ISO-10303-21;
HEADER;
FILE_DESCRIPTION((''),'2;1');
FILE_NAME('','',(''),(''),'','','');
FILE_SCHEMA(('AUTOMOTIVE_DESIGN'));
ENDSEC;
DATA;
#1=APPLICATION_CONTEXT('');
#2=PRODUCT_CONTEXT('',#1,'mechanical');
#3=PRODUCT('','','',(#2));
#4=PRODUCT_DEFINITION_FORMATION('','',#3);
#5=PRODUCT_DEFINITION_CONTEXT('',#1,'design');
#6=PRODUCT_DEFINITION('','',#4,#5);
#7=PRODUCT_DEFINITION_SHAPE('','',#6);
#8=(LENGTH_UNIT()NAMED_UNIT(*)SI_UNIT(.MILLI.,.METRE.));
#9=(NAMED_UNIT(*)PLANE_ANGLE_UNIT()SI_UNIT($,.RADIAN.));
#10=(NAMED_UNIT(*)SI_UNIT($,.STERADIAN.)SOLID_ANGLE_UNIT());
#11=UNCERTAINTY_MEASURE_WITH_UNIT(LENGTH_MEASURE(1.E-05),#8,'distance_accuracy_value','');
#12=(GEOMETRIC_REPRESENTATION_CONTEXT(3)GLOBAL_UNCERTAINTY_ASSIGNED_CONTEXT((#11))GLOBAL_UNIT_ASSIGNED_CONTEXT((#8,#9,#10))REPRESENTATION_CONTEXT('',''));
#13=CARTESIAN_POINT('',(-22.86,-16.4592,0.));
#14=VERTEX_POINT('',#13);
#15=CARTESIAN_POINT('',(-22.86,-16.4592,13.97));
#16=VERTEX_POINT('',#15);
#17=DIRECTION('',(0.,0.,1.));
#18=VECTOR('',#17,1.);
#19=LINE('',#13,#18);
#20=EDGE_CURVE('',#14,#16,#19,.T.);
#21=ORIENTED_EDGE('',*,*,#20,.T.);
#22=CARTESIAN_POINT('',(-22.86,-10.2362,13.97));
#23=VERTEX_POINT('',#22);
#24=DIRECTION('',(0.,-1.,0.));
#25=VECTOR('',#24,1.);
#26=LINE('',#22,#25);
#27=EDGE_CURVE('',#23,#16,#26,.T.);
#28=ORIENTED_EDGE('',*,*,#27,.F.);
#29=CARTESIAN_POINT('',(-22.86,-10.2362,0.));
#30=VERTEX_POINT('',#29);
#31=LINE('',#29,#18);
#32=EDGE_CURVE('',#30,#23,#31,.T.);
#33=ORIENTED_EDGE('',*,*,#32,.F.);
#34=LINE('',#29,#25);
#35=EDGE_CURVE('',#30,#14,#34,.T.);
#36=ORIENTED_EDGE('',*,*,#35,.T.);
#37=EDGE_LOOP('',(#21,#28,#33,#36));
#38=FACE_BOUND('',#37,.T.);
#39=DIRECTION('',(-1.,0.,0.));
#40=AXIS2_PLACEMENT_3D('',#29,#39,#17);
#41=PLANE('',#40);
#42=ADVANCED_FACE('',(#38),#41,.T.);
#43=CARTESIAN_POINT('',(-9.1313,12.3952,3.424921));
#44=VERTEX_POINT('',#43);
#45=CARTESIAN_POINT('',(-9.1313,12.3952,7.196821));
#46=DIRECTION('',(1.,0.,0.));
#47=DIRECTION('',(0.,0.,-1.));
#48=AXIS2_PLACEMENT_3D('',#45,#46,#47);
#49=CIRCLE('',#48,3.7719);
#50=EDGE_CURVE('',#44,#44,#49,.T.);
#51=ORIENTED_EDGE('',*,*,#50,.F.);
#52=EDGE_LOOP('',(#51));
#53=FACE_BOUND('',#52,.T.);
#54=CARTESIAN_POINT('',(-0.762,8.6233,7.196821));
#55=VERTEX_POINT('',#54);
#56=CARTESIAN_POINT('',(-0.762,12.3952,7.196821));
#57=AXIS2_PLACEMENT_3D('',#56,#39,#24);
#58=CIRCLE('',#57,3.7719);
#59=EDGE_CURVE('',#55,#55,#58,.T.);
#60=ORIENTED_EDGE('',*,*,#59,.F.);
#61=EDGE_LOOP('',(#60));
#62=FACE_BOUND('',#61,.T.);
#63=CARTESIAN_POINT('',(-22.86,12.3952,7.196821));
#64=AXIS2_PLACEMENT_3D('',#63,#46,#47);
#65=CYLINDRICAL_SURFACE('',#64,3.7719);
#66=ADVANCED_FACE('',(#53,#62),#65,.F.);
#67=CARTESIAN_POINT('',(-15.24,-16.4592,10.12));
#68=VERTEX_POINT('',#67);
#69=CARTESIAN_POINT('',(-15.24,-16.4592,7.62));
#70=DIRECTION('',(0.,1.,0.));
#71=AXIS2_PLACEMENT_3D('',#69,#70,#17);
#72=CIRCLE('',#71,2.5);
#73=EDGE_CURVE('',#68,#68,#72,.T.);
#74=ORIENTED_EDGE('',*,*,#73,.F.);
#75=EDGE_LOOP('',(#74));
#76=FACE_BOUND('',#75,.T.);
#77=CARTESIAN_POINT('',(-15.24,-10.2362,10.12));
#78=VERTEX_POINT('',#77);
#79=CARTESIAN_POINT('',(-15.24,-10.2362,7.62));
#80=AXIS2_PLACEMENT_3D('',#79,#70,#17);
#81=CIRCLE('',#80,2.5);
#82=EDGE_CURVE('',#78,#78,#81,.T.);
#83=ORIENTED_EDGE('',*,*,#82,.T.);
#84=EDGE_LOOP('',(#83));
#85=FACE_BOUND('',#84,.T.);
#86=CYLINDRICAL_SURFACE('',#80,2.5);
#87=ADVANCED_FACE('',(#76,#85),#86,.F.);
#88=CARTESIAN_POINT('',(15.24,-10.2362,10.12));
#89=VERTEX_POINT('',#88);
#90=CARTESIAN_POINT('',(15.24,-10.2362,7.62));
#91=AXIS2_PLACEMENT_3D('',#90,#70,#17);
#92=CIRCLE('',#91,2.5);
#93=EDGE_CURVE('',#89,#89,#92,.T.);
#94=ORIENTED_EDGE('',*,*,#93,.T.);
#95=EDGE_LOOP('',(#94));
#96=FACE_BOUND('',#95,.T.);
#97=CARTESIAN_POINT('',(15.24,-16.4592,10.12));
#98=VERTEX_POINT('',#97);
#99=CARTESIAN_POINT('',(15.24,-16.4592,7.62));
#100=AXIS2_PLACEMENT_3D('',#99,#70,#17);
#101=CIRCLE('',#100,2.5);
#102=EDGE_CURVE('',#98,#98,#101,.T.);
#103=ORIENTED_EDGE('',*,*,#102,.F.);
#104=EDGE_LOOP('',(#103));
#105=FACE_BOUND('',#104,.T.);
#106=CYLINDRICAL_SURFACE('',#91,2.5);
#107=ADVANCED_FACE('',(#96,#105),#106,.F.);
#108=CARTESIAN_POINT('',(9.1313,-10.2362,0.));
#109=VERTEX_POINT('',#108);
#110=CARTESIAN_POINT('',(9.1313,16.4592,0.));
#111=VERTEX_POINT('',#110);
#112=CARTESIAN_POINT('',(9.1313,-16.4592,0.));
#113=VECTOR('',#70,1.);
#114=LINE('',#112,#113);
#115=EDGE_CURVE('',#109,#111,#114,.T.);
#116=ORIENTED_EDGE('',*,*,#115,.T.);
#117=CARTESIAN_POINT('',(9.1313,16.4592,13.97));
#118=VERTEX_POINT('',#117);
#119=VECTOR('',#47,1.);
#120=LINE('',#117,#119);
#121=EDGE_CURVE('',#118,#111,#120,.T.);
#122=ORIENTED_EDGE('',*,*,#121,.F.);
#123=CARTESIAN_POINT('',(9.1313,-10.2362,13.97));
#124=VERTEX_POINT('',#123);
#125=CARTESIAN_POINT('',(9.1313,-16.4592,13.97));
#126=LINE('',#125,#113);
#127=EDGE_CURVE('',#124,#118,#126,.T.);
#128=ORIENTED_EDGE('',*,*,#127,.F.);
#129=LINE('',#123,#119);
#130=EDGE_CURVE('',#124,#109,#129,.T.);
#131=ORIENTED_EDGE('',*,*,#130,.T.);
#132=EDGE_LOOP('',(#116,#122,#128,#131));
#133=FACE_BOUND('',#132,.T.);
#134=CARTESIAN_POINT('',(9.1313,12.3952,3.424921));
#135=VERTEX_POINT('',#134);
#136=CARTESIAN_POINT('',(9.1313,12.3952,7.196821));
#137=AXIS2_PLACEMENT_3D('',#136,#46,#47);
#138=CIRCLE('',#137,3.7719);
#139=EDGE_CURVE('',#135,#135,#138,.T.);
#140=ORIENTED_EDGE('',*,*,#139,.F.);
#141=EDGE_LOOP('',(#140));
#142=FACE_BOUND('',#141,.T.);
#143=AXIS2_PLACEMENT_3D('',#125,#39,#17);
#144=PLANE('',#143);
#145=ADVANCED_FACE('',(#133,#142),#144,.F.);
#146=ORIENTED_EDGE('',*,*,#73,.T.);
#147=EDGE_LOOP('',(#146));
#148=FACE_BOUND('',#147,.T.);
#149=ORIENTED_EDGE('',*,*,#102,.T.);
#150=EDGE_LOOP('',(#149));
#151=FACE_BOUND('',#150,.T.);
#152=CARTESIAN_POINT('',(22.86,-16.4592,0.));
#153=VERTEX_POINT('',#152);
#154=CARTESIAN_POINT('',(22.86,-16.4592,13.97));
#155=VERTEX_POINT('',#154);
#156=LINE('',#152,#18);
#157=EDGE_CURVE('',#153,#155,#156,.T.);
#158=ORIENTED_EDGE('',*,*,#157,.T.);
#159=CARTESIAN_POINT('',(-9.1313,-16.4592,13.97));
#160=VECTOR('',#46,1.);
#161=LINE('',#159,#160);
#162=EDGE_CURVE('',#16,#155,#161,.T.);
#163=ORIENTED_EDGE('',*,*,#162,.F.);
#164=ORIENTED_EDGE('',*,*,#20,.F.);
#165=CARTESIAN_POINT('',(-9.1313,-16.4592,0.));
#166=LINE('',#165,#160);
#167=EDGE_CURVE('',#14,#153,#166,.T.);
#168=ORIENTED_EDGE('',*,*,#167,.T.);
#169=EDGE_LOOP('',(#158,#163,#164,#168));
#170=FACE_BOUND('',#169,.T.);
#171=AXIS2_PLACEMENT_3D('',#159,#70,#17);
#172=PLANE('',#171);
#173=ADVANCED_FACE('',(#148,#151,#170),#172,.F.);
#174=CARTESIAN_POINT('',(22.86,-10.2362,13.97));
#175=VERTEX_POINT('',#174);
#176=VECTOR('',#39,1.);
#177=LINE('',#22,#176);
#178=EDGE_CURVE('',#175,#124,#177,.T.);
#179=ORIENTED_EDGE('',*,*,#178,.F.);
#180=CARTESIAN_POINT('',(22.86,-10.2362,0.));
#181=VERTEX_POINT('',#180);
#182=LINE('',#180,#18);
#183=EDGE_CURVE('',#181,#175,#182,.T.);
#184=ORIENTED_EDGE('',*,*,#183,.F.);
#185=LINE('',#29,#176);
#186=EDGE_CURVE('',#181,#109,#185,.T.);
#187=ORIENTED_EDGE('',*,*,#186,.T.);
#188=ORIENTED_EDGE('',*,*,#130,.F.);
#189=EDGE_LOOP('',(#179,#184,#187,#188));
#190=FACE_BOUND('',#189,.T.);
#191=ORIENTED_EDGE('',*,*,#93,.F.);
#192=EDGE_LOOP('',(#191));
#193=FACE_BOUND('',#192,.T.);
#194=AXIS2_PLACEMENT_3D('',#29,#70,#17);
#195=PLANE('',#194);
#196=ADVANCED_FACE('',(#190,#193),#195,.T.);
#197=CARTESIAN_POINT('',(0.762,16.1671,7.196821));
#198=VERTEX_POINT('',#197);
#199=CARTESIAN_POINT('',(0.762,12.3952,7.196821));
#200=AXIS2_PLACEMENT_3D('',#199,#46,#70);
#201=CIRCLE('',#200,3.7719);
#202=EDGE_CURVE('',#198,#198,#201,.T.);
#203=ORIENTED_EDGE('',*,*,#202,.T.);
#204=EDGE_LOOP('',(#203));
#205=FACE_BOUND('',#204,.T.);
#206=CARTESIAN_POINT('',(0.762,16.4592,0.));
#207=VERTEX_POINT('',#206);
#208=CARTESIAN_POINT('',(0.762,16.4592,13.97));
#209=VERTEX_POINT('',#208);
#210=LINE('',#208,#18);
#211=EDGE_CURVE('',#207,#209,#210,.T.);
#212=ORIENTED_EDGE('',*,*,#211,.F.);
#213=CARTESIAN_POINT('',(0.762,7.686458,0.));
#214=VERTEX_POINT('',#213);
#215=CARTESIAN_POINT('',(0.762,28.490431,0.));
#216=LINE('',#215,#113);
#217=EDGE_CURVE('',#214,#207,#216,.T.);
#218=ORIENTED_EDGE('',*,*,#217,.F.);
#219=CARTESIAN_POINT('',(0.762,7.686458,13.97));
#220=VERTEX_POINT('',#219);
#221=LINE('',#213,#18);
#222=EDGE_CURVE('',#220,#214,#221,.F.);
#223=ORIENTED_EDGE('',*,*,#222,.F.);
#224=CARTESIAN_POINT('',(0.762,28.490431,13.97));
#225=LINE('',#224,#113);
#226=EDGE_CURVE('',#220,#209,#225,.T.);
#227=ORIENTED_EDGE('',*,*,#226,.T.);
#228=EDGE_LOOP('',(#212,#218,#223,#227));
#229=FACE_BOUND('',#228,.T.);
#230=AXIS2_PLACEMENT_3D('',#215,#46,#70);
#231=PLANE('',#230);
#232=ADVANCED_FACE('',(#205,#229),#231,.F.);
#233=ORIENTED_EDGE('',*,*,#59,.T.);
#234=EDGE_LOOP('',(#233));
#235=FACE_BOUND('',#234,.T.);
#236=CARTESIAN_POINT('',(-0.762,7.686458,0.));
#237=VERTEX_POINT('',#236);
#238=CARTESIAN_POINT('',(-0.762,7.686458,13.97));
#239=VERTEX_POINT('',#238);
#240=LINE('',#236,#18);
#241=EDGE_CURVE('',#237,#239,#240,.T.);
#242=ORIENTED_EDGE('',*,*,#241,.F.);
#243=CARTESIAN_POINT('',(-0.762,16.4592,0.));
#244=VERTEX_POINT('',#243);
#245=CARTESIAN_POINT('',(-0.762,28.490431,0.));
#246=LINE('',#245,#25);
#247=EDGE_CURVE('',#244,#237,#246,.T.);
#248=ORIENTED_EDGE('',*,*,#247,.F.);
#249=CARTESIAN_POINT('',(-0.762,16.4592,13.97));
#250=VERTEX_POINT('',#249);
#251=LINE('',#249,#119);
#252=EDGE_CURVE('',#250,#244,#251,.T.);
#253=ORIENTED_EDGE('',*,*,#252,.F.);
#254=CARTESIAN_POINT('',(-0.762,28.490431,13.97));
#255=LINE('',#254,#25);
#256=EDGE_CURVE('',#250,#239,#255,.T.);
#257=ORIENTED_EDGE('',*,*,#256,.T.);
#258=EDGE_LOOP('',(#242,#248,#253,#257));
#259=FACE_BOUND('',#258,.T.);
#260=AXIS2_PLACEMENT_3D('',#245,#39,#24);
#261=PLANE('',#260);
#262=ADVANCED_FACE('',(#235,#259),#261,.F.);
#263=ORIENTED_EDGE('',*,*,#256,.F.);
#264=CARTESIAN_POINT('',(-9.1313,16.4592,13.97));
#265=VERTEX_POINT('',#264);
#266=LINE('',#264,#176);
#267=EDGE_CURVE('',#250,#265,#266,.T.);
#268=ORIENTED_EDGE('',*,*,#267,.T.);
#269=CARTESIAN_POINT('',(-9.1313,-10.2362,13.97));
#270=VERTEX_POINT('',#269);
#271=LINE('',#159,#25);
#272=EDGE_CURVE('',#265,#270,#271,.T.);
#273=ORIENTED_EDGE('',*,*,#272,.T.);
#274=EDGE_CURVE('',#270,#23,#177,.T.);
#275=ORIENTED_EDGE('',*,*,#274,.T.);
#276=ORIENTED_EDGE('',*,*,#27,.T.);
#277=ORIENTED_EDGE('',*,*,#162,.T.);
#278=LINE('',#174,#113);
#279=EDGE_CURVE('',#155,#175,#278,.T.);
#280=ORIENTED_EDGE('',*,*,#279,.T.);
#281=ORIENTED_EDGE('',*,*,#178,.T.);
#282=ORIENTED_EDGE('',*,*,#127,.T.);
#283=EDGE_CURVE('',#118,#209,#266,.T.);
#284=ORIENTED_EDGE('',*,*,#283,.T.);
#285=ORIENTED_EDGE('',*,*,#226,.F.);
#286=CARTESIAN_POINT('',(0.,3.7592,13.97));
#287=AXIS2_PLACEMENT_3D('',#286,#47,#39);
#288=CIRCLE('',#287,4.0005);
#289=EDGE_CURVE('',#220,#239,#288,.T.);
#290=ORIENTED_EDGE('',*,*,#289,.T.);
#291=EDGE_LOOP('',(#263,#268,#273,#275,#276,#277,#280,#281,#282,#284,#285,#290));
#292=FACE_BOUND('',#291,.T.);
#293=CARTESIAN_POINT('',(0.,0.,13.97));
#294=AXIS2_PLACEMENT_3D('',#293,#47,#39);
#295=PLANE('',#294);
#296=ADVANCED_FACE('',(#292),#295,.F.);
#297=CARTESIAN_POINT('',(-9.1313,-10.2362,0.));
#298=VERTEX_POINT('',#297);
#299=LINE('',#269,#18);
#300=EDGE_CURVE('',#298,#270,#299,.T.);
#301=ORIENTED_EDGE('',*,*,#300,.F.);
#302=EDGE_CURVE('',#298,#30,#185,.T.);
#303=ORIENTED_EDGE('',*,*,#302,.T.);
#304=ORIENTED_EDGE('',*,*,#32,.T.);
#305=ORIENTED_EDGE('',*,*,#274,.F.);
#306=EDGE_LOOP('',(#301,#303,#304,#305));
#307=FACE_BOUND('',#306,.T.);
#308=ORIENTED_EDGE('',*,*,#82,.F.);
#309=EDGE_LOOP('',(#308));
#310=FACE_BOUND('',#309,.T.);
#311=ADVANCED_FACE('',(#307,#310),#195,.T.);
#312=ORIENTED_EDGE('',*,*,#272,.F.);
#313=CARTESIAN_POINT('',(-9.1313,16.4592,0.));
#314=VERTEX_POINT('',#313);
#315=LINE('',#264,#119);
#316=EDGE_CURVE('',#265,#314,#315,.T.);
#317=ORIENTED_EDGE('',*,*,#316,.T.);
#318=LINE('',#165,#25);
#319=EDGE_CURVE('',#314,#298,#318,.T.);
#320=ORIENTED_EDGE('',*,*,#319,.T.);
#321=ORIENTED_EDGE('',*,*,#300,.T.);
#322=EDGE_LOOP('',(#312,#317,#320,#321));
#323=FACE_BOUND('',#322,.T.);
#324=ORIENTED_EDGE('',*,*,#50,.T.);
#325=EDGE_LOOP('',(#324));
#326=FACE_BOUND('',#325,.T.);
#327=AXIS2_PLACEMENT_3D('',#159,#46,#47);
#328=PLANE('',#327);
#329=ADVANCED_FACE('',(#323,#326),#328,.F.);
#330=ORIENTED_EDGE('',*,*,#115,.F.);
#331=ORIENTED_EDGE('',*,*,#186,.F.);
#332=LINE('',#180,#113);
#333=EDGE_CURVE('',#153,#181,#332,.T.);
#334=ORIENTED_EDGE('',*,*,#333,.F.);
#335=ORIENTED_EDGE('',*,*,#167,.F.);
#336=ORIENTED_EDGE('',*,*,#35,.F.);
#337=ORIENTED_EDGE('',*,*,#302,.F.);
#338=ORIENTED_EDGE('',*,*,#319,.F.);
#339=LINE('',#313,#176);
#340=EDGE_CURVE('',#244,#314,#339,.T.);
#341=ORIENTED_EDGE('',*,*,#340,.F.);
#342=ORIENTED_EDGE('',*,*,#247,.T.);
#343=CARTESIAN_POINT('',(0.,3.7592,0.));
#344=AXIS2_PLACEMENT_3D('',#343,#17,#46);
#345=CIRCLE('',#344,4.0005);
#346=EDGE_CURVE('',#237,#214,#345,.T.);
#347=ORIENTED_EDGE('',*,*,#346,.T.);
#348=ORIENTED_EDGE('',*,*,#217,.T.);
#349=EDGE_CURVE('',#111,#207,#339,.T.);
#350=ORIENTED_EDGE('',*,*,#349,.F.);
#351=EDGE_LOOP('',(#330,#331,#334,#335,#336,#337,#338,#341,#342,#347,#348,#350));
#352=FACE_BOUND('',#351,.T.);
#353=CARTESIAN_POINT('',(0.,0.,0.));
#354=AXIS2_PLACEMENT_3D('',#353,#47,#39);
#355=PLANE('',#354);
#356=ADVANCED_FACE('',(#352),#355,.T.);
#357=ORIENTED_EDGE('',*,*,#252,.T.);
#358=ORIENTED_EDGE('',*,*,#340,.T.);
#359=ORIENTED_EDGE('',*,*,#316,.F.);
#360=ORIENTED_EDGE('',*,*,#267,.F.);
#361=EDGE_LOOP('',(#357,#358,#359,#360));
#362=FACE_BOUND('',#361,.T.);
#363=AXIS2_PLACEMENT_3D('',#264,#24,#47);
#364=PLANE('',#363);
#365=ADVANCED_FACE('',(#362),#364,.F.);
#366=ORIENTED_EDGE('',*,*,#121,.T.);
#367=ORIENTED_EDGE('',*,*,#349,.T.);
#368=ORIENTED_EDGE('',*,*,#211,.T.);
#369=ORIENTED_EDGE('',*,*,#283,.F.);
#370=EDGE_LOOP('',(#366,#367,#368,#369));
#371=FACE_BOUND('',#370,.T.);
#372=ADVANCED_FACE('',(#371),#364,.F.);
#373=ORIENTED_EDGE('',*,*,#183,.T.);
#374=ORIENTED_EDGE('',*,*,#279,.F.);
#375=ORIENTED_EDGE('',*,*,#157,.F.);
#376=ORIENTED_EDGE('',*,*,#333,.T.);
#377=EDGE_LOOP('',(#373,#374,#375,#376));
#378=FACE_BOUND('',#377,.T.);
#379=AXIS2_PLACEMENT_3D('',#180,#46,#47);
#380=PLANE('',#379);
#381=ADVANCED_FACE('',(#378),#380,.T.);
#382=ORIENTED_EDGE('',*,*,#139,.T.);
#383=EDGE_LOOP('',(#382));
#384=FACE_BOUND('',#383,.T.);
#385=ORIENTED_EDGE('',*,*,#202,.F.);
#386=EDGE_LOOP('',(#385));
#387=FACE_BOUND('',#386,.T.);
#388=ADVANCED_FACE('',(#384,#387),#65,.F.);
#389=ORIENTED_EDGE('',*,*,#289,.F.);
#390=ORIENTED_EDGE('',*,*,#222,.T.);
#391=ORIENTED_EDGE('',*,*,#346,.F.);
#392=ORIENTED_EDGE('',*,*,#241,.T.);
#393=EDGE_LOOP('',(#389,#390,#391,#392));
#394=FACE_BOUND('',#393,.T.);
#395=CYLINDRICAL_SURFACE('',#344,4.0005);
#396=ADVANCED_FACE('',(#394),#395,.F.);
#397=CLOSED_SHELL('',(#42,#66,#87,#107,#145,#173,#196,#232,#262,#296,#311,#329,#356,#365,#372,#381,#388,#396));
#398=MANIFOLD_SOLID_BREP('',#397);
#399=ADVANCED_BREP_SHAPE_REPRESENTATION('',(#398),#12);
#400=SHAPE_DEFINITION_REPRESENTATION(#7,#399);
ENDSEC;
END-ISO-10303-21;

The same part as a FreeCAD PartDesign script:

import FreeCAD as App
import Part
import Sketcher

V = App.Vector
Q = App.Units.Quantity

doc = App.newDocument("Part")
body = doc.addObject("PartDesign::Body", "Body")

sketch1 = body.newObject("Sketcher::SketchObject", "Sketch")
sketch1.AttachmentSupport = (doc.getObject("XY_Plane"), [""])
sketch1.MapMode = "FlatFace"
sketch1.addGeometry([
    Part.LineSegment(V(-9, 16, 0), V(-9, -16, 0)),
    Part.LineSegment(V(-9, -16, 0), V(9, -16, 0)),
    Part.LineSegment(V(9, -16, 0), V(9, 16, 0)),
    Part.LineSegment(V(9, 16, 0), V(-9, 16, 0)),
], False)
sketch1.addConstraint([
    Sketcher.Constraint("Coincident", 0, 2, 1, 1),
    Sketcher.Constraint("Coincident", 1, 2, 2, 1),
    Sketcher.Constraint("Coincident", 2, 2, 3, 1),
    Sketcher.Constraint("Coincident", 3, 2, 0, 1),
    Sketcher.Constraint("Vertical", 0),
    Sketcher.Constraint("Horizontal", 1),
    Sketcher.Constraint("Vertical", 2),
    Sketcher.Constraint("Horizontal", 3),
    Sketcher.Constraint("Symmetric", 0, 2, 2, 2, -1, 1),
    Sketcher.Constraint("DistanceX", 1, 1, 1, 2, Q("0.719 in")),
    Sketcher.Constraint("DistanceY", 0, 2, 0, 1, Q("1.296 in")),
])
pad1 = body.newObject("PartDesign::Pad", "Pad")
pad1.Profile = sketch1
pad1.Length = Q("0.55 in")

sketch2 = body.newObject("Sketcher::SketchObject", "Sketch001")
sketch2.AttachmentSupport = (doc.getObject("XY_Plane"), [""])
sketch2.MapMode = "FlatFace"
sketch2.AttachmentOffset = App.Placement(V(0, 0, 0.55 * 25.4), App.Rotation())
sketch2.addGeometry([
    Part.LineSegment(V(-23, -10, 0), V(-23, -16, 0)),
    Part.LineSegment(V(-23, -16, 0), V(23, -16, 0)),
    Part.LineSegment(V(23, -16, 0), V(23, -10, 0)),
    Part.LineSegment(V(23, -10, 0), V(-23, -10, 0)),
], False)
sketch2.addConstraint([
    Sketcher.Constraint("Coincident", 0, 2, 1, 1),
    Sketcher.Constraint("Coincident", 1, 2, 2, 1),
    Sketcher.Constraint("Coincident", 2, 2, 3, 1),
    Sketcher.Constraint("Coincident", 3, 2, 0, 1),
    Sketcher.Constraint("Vertical", 0),
    Sketcher.Constraint("Horizontal", 1),
    Sketcher.Constraint("Vertical", 2),
    Sketcher.Constraint("Horizontal", 3),
    Sketcher.Constraint("DistanceX", 1, 1, 1, 2, Q("1.8 in")),
    Sketcher.Constraint("DistanceX", 0, 2, -1, 1, Q("0.9 in")),
    Sketcher.Constraint("DistanceY", 0, 2, 0, 1, Q("0.245 in")),
    Sketcher.Constraint("DistanceY", 0, 2, -1, 1, Q("0.648 in")),
])
pad2 = body.newObject("PartDesign::Pad", "Pad001")
pad2.Profile = sketch2
pad2.Length = Q("0.55 in")
pad2.Reversed = True

sketch3 = body.newObject("Sketcher::SketchObject", "Sketch002")
sketch3.AttachmentSupport = (doc.getObject("XY_Plane"), [""])
sketch3.MapMode = "FlatFace"
sketch3.AttachmentOffset = App.Placement(V(0, 0, 0.55 * 25.4), App.Rotation())
sketch3.addGeometry(Part.Circle(V(0, 3.8, 0), V(0, 0, 1), 4), False)
sketch3.addConstraint([
    Sketcher.Constraint("PointOnObject", 0, 3, -2),
    Sketcher.Constraint("Diameter", 0, Q("0.315 in")),
    Sketcher.Constraint("DistanceY", -1, 1, 0, 3, Q("0.148 in")),
])
pocket1 = body.newObject("PartDesign::Pocket", "Pocket")
pocket1.Profile = sketch3
pocket1.Type = "ThroughAll"
pocket1.Midplane = True

sketch4 = body.newObject("Sketcher::SketchObject", "Sketch003")
sketch4.AttachmentSupport = (doc.getObject("XY_Plane"), [""])
sketch4.MapMode = "FlatFace"
sketch4.AttachmentOffset = App.Placement(V(0, 0, 0.55 * 25.4), App.Rotation())
sketch4.addGeometry([
    Part.LineSegment(V(-0.8, 28.5, 0), V(-0.8, 4.4, 0)),
    Part.LineSegment(V(-0.8, 4.4, 0), V(0.8, 4.4, 0)),
    Part.LineSegment(V(0.8, 4.4, 0), V(0.8, 28.5, 0)),
    Part.LineSegment(V(0.8, 28.5, 0), V(-0.8, 28.5, 0)),
], False)
sketch4.addConstraint([
    Sketcher.Constraint("Coincident", 0, 2, 1, 1),
    Sketcher.Constraint("Coincident", 1, 2, 2, 1),
    Sketcher.Constraint("Coincident", 2, 2, 3, 1),
    Sketcher.Constraint("Coincident", 3, 2, 0, 1),
    Sketcher.Constraint("Vertical", 0),
    Sketcher.Constraint("Horizontal", 1),
    Sketcher.Constraint("Vertical", 2),
    Sketcher.Constraint("Horizontal", 3),
    Sketcher.Constraint("DistanceX", 1, 1, 1, 2, Q("0.06 in")),
    Sketcher.Constraint("DistanceX", 0, 2, -1, 1, Q("0.03 in")),
    Sketcher.Constraint("DistanceY", 0, 2, 0, 1, Q("24.062462 mm")),
    Sketcher.Constraint("DistanceY", -1, 1, 0, 2, Q("4.427969 mm")),
])
pocket2 = body.newObject("PartDesign::Pocket", "Pocket001")
pocket2.Profile = sketch4
pocket2.Type = "ThroughAll"

sketch5 = body.newObject("Sketcher::SketchObject", "Sketch004")
sketch5.AttachmentSupport = (doc.getObject("YZ_Plane"), [""])
sketch5.MapMode = "FlatFace"
sketch5.AttachmentOffset = App.Placement(V(0, 0, 0.3595 * 25.4), App.Rotation())
sketch5.addGeometry(Part.Circle(V(12.4, 7.2, 0), V(0, 0, 1), 3.8), False)
sketch5.addConstraint([
    Sketcher.Constraint("Diameter", 0, Q("0.297 in")),
    Sketcher.Constraint("DistanceX", -1, 1, 0, 3, Q("0.488 in")),
    Sketcher.Constraint("DistanceY", -1, 1, 0, 3, Q("7.196821 mm")),
])
pocket3 = body.newObject("PartDesign::Pocket", "Pocket002")
pocket3.Profile = sketch5
pocket3.Type = "ThroughAll"

sketch6 = body.newObject("Sketcher::SketchObject", "Sketch005")
sketch6.AttachmentSupport = (doc.getObject("XZ_Plane"), [""])
sketch6.MapMode = "FlatFace"
sketch6.AttachmentOffset = App.Placement(V(0, 0, 0.403 * 25.4), App.Rotation())
sketch6.addGeometry(Part.Circle(V(15.2, 7.6, 0), V(0, 0, 1), 2.5), False)
sketch6.addConstraint([
    Sketcher.Constraint("DistanceX", -1, 1, 0, 3, Q("0.6 in")),
    Sketcher.Constraint("DistanceY", -1, 1, 0, 3, Q("0.3 in")),
    Sketcher.Constraint("Diameter", 0, Q("5 mm")),
])
doc.recompute()
hole = body.newObject("PartDesign::Hole", "Hole")
hole.Profile = sketch6
hole.ThreadType = "None"
hole.Diameter = 5
hole.DepthType = "ThroughAll"
hole.Reversed = True
doc.recompute()

mirrored = body.newObject("PartDesign::Mirrored", "Mirrored")
mirrored.Originals = [hole]
mirrored.MirrorPlane = (doc.getObject("YZ_Plane"), [""])
body.Tip = mirrored

doc.recompute()
